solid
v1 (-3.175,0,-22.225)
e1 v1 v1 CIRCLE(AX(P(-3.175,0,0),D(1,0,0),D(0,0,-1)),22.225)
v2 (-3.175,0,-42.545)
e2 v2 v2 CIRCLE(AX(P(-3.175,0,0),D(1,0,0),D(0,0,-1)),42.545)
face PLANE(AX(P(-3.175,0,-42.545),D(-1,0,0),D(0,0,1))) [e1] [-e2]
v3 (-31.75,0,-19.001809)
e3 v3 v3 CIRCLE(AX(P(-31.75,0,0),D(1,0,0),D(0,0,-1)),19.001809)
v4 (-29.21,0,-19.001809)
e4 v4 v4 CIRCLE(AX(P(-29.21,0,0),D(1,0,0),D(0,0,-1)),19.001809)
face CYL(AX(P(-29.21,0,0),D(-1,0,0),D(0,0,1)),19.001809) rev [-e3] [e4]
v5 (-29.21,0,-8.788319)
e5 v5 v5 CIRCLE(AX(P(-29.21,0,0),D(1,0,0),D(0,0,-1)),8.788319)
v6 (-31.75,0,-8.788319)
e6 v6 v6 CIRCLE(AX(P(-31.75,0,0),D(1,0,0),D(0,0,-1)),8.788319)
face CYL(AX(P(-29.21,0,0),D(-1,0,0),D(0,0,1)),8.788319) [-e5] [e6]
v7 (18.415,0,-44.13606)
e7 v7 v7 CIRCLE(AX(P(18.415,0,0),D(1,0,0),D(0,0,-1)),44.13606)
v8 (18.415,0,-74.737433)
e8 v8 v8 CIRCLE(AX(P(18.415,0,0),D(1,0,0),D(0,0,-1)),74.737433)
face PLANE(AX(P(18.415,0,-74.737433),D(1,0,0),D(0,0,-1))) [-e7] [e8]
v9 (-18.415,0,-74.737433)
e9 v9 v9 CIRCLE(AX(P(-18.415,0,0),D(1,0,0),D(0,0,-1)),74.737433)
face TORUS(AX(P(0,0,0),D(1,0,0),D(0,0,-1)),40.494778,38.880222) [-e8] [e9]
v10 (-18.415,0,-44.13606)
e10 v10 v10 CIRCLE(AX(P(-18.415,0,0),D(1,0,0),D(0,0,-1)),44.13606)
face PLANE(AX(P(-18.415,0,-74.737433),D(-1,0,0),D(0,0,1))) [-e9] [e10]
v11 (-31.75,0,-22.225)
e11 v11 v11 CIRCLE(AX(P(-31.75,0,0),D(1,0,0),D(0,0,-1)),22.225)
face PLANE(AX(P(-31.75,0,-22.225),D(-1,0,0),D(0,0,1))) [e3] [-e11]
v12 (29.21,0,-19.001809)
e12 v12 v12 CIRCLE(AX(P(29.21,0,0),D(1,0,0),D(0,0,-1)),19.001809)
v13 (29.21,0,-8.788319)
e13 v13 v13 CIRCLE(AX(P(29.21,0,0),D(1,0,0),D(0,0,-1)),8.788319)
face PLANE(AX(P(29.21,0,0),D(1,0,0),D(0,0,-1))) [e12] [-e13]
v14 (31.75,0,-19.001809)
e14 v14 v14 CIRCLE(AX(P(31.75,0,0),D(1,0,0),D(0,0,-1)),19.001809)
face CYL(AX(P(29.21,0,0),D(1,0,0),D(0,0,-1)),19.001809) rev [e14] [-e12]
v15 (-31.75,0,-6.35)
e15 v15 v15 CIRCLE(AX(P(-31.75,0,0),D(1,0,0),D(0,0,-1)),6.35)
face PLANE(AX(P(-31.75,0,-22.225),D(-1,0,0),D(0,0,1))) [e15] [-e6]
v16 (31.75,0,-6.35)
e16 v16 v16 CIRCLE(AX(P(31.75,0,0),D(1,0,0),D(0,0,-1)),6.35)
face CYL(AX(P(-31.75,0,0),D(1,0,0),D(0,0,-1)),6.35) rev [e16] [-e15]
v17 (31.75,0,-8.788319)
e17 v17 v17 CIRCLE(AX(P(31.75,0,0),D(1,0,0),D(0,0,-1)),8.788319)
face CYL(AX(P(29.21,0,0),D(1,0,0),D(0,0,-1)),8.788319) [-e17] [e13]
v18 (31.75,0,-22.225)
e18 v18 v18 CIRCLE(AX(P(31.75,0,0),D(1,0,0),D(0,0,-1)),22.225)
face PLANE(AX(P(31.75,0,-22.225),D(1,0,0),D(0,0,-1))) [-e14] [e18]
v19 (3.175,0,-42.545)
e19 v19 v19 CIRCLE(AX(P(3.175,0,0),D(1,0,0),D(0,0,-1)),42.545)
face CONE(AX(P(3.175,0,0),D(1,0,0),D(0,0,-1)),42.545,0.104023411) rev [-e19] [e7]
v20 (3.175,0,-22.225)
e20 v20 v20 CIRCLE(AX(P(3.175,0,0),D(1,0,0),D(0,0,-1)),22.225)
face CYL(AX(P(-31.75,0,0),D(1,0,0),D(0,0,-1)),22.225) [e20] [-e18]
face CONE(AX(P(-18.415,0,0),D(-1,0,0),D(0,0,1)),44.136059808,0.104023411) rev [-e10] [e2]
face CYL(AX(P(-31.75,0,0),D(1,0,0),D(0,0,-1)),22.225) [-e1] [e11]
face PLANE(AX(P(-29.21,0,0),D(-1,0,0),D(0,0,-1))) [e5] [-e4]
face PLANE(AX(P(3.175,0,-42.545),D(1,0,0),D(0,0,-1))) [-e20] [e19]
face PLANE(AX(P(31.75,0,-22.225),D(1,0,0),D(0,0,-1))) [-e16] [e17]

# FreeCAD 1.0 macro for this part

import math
import FreeCAD as App
import Part
import Sketcher

V = App.Vector
Q = App.Units.Quantity

doc = App.newDocument("Part")
body = doc.addObject("PartDesign::Body", "Body")

sketch1 = body.newObject("Sketcher::SketchObject", "Sketch")
sketch1.AttachmentSupport = (doc.getObject("XZ_Plane"), [""])
sketch1.MapMode = "FlatFace"
sketch1.addGeometry([
    Part.LineSegment(V(-31.75, -22.225, 0), V(-31.75, 0, 0)),
    Part.LineSegment(V(-31.75, 0, 0), V(31.75, 0, 0)),
    Part.LineSegment(V(31.75, 0, 0), V(31.75, -22.225, 0)),
    Part.LineSegment(V(31.75, -22.225, 0), V(3.175, -22.225, 0)),
    Part.LineSegment(V(3.175, -22.225, 0), V(3.175, -42.545, 0)),
    Part.LineSegment(V(3.175, -42.545, 0), V(18.415, -44.13606, 0)),
    Part.LineSegment(V(18.415, -44.13606, 0), V(18.415, -74.737433, 0)),
    Part.ArcOfCircle(Part.Circle(V(0, -40.494778, 0), V(0, 0, 1), 38.880222), math.radians(-118.270455), math.radians(-61.729545)),
    Part.LineSegment(V(-18.415, -74.737433, 0), V(-18.415, -44.13606, 0)),
    Part.LineSegment(V(-18.415, -44.13606, 0), V(-3.175, -42.545, 0)),
    Part.LineSegment(V(-3.175, -42.545, 0), V(-3.175, -22.225, 0)),
    Part.LineSegment(V(-3.175, -22.225, 0), V(-31.75, -22.225, 0)),
], False)
sketch1.addConstraint([
    Sketcher.Constraint("Coincident", 0, 2, 1, 1),
    Sketcher.Constraint("Coincident", 1, 2, 2, 1),
    Sketcher.Constraint("Coincident", 2, 2, 3, 1),
    Sketcher.Constraint("Coincident", 3, 2, 4, 1),
    Sketcher.Constraint("Coincident", 4, 2, 5, 1),
    Sketcher.Constraint("Coincident", 5, 2, 6, 1),
    Sketcher.Constraint("Coincident", 6, 2, 7, 2),
    Sketcher.Constraint("Coincident", 7, 1, 8, 1),
    Sketcher.Constraint("Coincident", 8, 2, 9, 1),
    Sketcher.Constraint("Coincident", 9, 2, 10, 1),
    Sketcher.Constraint("Coincident", 10, 2, 11, 1),
    Sketcher.Constraint("Coincident", 11, 2, 0, 1),
    Sketcher.Constraint("Vertical", 0),
    Sketcher.Constraint("Horizontal", 1),
    Sketcher.Constraint("Vertical", 2),
    Sketcher.Constraint("Horizontal", 3),
    Sketcher.Constraint("Vertical", 4),
    Sketcher.Constraint("Vertical", 6),
    Sketcher.Constraint("Vertical", 8),
    Sketcher.Constraint("Vertical", 10),
    Sketcher.Constraint("Horizontal", 11),
    Sketcher.Constraint("Symmetric", 0, 2, 1, 2, -1, 1),
    Sketcher.Constraint("Symmetric", 6, 2, 7, 1, -2),
    Sketcher.Constraint("Symmetric", 4, 2, 9, 2, -2),
    Sketcher.Constraint("Horizontal", 5, 2, 8, 2),
    Sketcher.Constraint("Horizontal", 3, 2, 10, 2),
    Sketcher.Constraint("DistanceX", 1, 1, 1, 2, Q("2.5 in")),
    Sketcher.Constraint("DistanceY", 4, 2, 4, 1, Q("0.8 in")),
    Sketcher.Constraint("DistanceX", 4, 2, 5, 2, Q("0.6 in")),
    Sketcher.Constraint("DistanceX", 3, 2, 3, 1, Q("1.125 in")),
    Sketcher.Constraint("DistanceY", 0, 1, 0, 2, Q("0.875 in")),
    Sketcher.Constraint("Radius", 7, 38.880222),
    Sketcher.Constraint("Distance", 5, 15.322828),
    Sketcher.Constraint("DistanceY", 6, 2, 6, 1, 30.601373),
])
revolution = body.newObject("PartDesign::Revolution", "Revolution")
revolution.Profile = sketch1
revolution.ReferenceAxis = (sketch1, ["H_Axis"])
revolution.Angle = 360

sketch2 = body.newObject("Sketcher::SketchObject", "Sketch001")
sketch2.AttachmentSupport = (doc.getObject("YZ_Plane"), [""])
sketch2.MapMode = "FlatFace"
sketch2.AttachmentOffset = App.Placement(V(0, 0, 1.25 * 25.4), App.Rotation())
sketch2.addGeometry([
    Part.Circle(V(0, 0, 0), V(0, 0, 1), 19.001809),
    Part.Circle(V(0, 0, 0), V(0, 0, 1), 8.788319),
], False)
sketch2.addConstraint([
    Sketcher.Constraint("Coincident", 0, 3, -1, 1),
    Sketcher.Constraint("Coincident", 1, 3, -1, 1),
    Sketcher.Constraint("Diameter", 0, 38.003618),
    Sketcher.Constraint("Diameter", 1, 17.576638),
])
pocket1 = body.newObject("PartDesign::Pocket", "Pocket")
pocket1.Profile = sketch2
pocket1.Length = Q("0.1 in")

sketch3 = body.newObject("Sketcher::SketchObject", "Sketch002")
sketch3.AttachmentSupport = (doc.getObject("YZ_Plane"), [""])
sketch3.MapMode = "FlatFace"
sketch3.AttachmentOffset = App.Placement(V(0, 0, 1.25 * 25.4), App.Rotation())
sketch3.addGeometry(Part.Circle(V(0, 0, 0), V(0, 0, 1), 6.35), False)
sketch3.addConstraint([
    Sketcher.Constraint("Coincident", 0, 3, -1, 1),
    Sketcher.Constraint("Diameter", 0, Q("0.5 in")),
])
pocket2 = body.newObject("PartDesign::Pocket", "Pocket001")
pocket2.Profile = sketch3
pocket2.Type = "ThroughAll"
doc.recompute()

mirrored = body.newObject("PartDesign::Mirrored", "Mirrored")
mirrored.Originals = [pocket1]
mirrored.MirrorPlane = (doc.getObject("YZ_Plane"), [""])
body.Tip = mirrored

doc.recompute()
